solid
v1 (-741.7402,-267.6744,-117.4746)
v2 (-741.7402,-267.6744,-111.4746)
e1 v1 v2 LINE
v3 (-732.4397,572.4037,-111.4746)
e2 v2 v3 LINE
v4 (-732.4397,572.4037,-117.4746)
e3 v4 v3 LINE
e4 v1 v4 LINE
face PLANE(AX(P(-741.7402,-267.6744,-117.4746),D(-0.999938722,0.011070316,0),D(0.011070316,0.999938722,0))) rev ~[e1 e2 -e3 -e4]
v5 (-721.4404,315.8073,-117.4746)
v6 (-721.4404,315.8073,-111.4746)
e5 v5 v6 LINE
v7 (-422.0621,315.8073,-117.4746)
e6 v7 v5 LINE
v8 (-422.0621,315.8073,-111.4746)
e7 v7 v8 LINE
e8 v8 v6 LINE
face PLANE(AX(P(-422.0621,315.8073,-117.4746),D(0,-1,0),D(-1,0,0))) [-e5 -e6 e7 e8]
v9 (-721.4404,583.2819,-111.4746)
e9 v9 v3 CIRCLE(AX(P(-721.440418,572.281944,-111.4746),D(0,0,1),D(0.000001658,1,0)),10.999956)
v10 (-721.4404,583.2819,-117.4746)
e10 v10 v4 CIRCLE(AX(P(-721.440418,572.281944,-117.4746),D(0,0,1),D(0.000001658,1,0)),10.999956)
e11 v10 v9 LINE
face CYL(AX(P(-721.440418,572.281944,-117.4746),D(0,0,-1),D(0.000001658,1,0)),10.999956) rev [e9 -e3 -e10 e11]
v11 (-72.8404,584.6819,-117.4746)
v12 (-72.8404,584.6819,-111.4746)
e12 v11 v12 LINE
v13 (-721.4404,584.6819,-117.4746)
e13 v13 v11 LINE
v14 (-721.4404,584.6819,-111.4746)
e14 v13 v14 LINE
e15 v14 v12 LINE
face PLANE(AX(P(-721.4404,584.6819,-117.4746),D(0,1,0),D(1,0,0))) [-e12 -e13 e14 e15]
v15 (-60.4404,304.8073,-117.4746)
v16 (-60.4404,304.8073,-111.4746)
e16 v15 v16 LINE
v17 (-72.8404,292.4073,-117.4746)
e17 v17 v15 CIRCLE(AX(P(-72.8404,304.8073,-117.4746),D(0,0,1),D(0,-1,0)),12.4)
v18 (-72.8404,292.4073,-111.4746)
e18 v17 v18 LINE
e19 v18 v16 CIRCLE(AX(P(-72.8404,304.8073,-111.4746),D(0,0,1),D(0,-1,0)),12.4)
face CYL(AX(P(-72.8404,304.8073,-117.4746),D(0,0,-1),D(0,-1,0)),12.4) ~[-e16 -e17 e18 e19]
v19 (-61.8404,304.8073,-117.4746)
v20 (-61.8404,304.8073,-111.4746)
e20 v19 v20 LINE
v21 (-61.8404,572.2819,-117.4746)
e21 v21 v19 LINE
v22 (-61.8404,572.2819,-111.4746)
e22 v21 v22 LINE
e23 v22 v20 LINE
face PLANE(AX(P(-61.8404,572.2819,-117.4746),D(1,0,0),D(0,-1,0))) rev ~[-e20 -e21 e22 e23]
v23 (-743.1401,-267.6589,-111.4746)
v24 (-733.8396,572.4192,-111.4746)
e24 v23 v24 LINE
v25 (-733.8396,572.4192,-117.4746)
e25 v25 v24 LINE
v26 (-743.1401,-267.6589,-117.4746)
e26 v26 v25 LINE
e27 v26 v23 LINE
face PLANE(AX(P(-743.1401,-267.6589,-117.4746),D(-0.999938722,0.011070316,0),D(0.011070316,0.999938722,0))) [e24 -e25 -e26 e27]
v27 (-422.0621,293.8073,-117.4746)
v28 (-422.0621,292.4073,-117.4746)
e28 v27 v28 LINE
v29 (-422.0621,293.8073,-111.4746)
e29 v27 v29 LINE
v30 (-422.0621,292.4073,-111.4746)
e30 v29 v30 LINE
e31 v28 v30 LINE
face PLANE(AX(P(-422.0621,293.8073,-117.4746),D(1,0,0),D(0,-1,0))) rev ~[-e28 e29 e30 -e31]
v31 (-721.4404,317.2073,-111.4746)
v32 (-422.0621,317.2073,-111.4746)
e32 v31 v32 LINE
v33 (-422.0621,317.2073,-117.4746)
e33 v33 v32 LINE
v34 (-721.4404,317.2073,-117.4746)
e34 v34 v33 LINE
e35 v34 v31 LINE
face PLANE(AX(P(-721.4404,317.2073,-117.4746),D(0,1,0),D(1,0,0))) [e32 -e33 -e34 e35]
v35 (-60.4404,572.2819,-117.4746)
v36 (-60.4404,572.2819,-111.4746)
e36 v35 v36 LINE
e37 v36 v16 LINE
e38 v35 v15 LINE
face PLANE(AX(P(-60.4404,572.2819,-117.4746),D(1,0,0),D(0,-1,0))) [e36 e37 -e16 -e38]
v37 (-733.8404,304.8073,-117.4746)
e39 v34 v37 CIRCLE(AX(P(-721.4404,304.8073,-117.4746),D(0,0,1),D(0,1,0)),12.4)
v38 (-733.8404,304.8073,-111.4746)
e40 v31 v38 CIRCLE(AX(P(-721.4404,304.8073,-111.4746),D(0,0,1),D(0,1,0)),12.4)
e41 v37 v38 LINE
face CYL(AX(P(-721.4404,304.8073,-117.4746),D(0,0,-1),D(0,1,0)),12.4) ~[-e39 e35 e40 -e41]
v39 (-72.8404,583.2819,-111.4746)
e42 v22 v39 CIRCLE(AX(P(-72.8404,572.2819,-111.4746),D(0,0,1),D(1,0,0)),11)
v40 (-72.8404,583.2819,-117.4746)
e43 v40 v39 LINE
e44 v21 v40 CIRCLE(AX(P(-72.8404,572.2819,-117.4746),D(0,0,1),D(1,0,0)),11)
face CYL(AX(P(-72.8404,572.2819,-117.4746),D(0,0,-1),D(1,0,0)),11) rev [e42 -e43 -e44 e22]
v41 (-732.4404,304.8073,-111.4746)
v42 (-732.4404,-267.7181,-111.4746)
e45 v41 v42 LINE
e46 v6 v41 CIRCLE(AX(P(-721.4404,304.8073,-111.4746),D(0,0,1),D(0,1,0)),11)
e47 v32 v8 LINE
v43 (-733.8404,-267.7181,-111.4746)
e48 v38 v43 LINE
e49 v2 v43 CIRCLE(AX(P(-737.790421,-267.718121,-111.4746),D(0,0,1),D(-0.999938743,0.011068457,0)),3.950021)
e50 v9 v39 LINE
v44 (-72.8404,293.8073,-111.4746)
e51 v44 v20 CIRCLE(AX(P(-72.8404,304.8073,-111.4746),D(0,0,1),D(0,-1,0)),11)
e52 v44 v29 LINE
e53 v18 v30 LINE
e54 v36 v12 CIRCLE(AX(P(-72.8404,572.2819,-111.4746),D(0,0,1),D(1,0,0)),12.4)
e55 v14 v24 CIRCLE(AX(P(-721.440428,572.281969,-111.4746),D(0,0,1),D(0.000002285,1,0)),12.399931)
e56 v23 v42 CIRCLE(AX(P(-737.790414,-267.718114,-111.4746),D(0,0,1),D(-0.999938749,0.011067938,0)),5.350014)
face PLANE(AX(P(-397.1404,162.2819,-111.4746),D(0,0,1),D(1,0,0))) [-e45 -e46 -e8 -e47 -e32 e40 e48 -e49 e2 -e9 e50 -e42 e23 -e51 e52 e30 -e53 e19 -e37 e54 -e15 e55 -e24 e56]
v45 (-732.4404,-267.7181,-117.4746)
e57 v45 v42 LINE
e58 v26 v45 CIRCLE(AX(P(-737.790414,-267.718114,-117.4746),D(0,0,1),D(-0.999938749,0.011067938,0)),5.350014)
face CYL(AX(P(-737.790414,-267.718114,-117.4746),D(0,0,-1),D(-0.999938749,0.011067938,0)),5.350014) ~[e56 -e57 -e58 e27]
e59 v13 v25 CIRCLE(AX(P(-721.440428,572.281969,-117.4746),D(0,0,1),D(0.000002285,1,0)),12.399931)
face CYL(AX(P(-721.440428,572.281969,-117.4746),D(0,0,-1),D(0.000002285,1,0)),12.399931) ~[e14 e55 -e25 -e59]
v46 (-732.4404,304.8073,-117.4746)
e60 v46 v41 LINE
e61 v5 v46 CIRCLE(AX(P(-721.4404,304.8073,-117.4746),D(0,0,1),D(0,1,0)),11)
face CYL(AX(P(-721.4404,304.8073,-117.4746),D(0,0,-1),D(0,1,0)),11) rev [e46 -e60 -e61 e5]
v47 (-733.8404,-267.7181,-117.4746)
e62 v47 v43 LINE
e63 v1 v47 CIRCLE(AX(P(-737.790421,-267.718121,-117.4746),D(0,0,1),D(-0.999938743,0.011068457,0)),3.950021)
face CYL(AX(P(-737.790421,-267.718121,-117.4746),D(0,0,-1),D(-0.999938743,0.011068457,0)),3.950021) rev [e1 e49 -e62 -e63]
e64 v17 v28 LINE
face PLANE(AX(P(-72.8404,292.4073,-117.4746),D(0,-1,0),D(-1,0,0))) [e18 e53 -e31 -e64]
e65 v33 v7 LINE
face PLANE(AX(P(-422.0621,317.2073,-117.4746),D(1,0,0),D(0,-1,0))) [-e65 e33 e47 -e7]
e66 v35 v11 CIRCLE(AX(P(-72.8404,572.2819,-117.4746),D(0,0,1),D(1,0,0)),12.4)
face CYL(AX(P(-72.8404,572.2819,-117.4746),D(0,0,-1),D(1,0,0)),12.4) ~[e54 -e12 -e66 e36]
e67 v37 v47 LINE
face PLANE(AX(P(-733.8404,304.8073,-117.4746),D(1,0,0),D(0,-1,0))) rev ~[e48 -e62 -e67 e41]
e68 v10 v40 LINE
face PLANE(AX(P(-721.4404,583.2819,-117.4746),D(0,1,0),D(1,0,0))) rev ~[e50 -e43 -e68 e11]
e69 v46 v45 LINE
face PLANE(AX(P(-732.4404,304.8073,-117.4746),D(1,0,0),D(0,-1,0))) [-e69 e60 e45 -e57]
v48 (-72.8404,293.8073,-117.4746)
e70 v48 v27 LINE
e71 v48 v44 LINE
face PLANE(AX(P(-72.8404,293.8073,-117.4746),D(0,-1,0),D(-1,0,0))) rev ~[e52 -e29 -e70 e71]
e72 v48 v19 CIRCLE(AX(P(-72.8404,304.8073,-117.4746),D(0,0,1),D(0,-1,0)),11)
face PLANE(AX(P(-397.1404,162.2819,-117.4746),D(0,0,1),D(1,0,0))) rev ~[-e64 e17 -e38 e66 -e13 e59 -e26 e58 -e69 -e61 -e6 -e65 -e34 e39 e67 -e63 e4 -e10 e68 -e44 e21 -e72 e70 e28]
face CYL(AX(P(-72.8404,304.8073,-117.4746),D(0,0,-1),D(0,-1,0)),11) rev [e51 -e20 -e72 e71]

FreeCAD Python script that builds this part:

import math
import FreeCAD as App
import Part
import Sketcher
from FreeCAD import Vector

doc = App.newDocument("Part")
body = doc.addObject("PartDesign::Body", "Body")

# Sketch on XY plane
sketch1 = doc.addObject("Sketcher::SketchObject", "Sketch")
body.addObject(sketch1)
sketch1.AttachmentSupport = (doc.XY_Plane, [""])
sketch1.MapMode = "FlatFace"
sketch1.AttachmentOffset = App.Placement(Vector(0, 0, -117.4746), App.Rotation())
sketch1.addGeometry(Part.ArcOfCircle(Part.Circle(Vector(-737.8, -267.7, 0), Vector(0, 0, 1), 4), math.radians(179), math.radians(360)), False)
sketch1.addGeometry(Part.LineSegment(Vector(-741.7, -267.7, 0), Vector(-732.4, 572.4, 0)), False)
sketch1.addGeometry(Part.ArcOfCircle(Part.Circle(Vector(-721.4, 572.3, 0), Vector(0, 0, 1), 11), math.radians(90), math.radians(179)), False)
sketch1.addGeometry(Part.LineSegment(Vector(-721.4, 583.3, 0), Vector(-72.8, 583.3, 0)), False)
sketch1.addGeometry(Part.ArcOfCircle(Part.Circle(Vector(-72.8, 572.3, 0), Vector(0, 0, 1), 11), math.radians(0), math.radians(90)), False)
sketch1.addGeometry(Part.LineSegment(Vector(-61.8, 572.3, 0), Vector(-61.8, 304.8, 0)), False)
sketch1.addGeometry(Part.ArcOfCircle(Part.Circle(Vector(-72.8, 304.8, 0), Vector(0, 0, 1), 11), math.radians(-90), math.radians(0)), False)
sketch1.addGeometry(Part.LineSegment(Vector(-72.8, 293.8, 0), Vector(-422.1, 293.8, 0)), False)
sketch1.addGeometry(Part.LineSegment(Vector(-422.1, 293.8, 0), Vector(-422.1, 292.4, 0)), False)
sketch1.addGeometry(Part.LineSegment(Vector(-422.1, 292.4, 0), Vector(-72.8, 292.4, 0)), False)
sketch1.addGeometry(Part.ArcOfCircle(Part.Circle(Vector(-72.8, 304.8, 0), Vector(0, 0, 1), 12.4), math.radians(-90), math.radians(0)), False)
sketch1.addGeometry(Part.LineSegment(Vector(-60.4, 304.8, 0), Vector(-60.4, 572.3, 0)), False)
sketch1.addGeometry(Part.ArcOfCircle(Part.Circle(Vector(-72.8, 572.3, 0), Vector(0, 0, 1), 12.4), math.radians(0), math.radians(90)), False)
sketch1.addGeometry(Part.LineSegment(Vector(-72.8, 584.7, 0), Vector(-721.4, 584.7, 0)), False)
sketch1.addGeometry(Part.ArcOfCircle(Part.Circle(Vector(-721.4, 572.3, 0), Vector(0, 0, 1), 12.4), math.radians(90), math.radians(179)), False)
sketch1.addGeometry(Part.LineSegment(Vector(-733.8, 572.4, 0), Vector(-743.1, -267.7, 0)), False)
sketch1.addGeometry(Part.ArcOfCircle(Part.Circle(Vector(-737.8, -267.7, 0), Vector(0, 0, 1), 5.4), math.radians(179), math.radians(360)), False)
sketch1.addGeometry(Part.LineSegment(Vector(-732.4, -267.7, 0), Vector(-732.4, 304.8, 0)), False)
sketch1.addGeometry(Part.ArcOfCircle(Part.Circle(Vector(-721.4, 304.8, 0), Vector(0, 0, 1), 11), math.radians(90), math.radians(180)), False)
sketch1.addGeometry(Part.LineSegment(Vector(-721.4, 315.8, 0), Vector(-422.1, 315.8, 0)), False)
sketch1.addGeometry(Part.LineSegment(Vector(-422.1, 315.8, 0), Vector(-422.1, 317.2, 0)), False)
sketch1.addGeometry(Part.LineSegment(Vector(-422.1, 317.2, 0), Vector(-721.4, 317.2, 0)), False)
sketch1.addGeometry(Part.ArcOfCircle(Part.Circle(Vector(-721.4, 304.8, 0), Vector(0, 0, 1), 12.4), math.radians(90), math.radians(180)), False)
sketch1.addGeometry(Part.LineSegment(Vector(-733.8, 304.8, 0), Vector(-733.8, -267.7, 0)), False)
sketch1.addConstraint(Sketcher.Constraint("Tangent", 0, 1, 1, 1))
sketch1.addConstraint(Sketcher.Constraint("Tangent", 1, 2, 2, 2))
sketch1.addConstraint(Sketcher.Constraint("Tangent", 2, 1, 3, 1))
sketch1.addConstraint(Sketcher.Constraint("Tangent", 3, 2, 4, 2))
sketch1.addConstraint(Sketcher.Constraint("Tangent", 4, 1, 5, 1))
sketch1.addConstraint(Sketcher.Constraint("Tangent", 5, 2, 6, 2))
sketch1.addConstraint(Sketcher.Constraint("Tangent", 6, 1, 7, 1))
sketch1.addConstraint(Sketcher.Constraint("Coincident", 7, 2, 8, 1))
sketch1.addConstraint(Sketcher.Constraint("Coincident", 8, 2, 9, 1))
sketch1.addConstraint(Sketcher.Constraint("Tangent", 9, 2, 10, 1))
sketch1.addConstraint(Sketcher.Constraint("Tangent", 10, 2, 11, 1))
sketch1.addConstraint(Sketcher.Constraint("Tangent", 11, 2, 12, 1))
sketch1.addConstraint(Sketcher.Constraint("Tangent", 12, 2, 13, 1))
sketch1.addConstraint(Sketcher.Constraint("Tangent", 13, 2, 14, 1))
sketch1.addConstraint(Sketcher.Constraint("Tangent", 14, 2, 15, 1))
sketch1.addConstraint(Sketcher.Constraint("Tangent", 15, 2, 16, 1))
sketch1.addConstraint(Sketcher.Constraint("Tangent", 16, 2, 17, 1))
sketch1.addConstraint(Sketcher.Constraint("Tangent", 17, 2, 18, 2))
sketch1.addConstraint(Sketcher.Constraint("Tangent", 18, 1, 19, 1))
sketch1.addConstraint(Sketcher.Constraint("Coincident", 19, 2, 20, 1))
sketch1.addConstraint(Sketcher.Constraint("Coincident", 20, 2, 21, 1))
sketch1.addConstraint(Sketcher.Constraint("Tangent", 21, 2, 22, 1))
sketch1.addConstraint(Sketcher.Constraint("Tangent", 22, 2, 23, 1))
sketch1.addConstraint(Sketcher.Constraint("Tangent", 23, 2, 0, 2))
sketch1.addConstraint(Sketcher.Constraint("Horizontal", 3))
sketch1.addConstraint(Sketcher.Constraint("Vertical", 5))
sketch1.addConstraint(Sketcher.Constraint("Horizontal", 7))
sketch1.addConstraint(Sketcher.Constraint("Vertical", 8))
sketch1.addConstraint(Sketcher.Constraint("Horizontal", 9))
sketch1.addConstraint(Sketcher.Constraint("Vertical", 11))
sketch1.addConstraint(Sketcher.Constraint("Horizontal", 13))
sketch1.addConstraint(Sketcher.Constraint("Vertical", 17))
sketch1.addConstraint(Sketcher.Constraint("Horizontal", 19))
sketch1.addConstraint(Sketcher.Constraint("Vertical", 20))
sketch1.addConstraint(Sketcher.Constraint("Horizontal", 21))
sketch1.addConstraint(Sketcher.Constraint("Vertical", 23))
sketch1.addConstraint(Sketcher.Constraint("Coincident", 10, 3, 6, 3))
sketch1.addConstraint(Sketcher.Constraint("Coincident", 12, 3, 4, 3))
sketch1.addConstraint(Sketcher.Constraint("Coincident", 14, 3, 2, 3))
sketch1.addConstraint(Sketcher.Constraint("Coincident", 16, 3, 0, 3))
sketch1.addConstraint(Sketcher.Constraint("Coincident", 22, 3, 18, 3))
sketch1.addConstraint(Sketcher.Constraint("Equal", 2, 4))
sketch1.addConstraint(Sketcher.Constraint("Equal", 4, 6))
sketch1.addConstraint(Sketcher.Constraint("Equal", 6, 18))
sketch1.addConstraint(Sketcher.Constraint("Equal", 14, 22))
sketch1.addConstraint(Sketcher.Constraint("Horizontal", 10, 3, 18, 3))
sketch1.addConstraint(Sketcher.Constraint("Vertical", 14, 3, 18, 3))
sketch1.addConstraint(Sketcher.Constraint("Vertical", 8, 2, 19, 2))
sketch1.addConstraint(Sketcher.Constraint("DistanceY", 8, 2, 8, 1, 1.4))
sketch1.addConstraint(Sketcher.Constraint("Radius", 2, 11.0))
sketch1.addConstraint(Sketcher.Constraint("Radius", 0, 3.95))
sketch1.addConstraint(Sketcher.Constraint("DistanceX", 3, 1, 3, 2, 648.6))
sketch1.addConstraint(Sketcher.Constraint("DistanceY", 0, 3, 2, 3, 840.0))
sketch1.addConstraint(Sketcher.Constraint("DistanceX", 15, 2, -1, 1, 743.14))
sketch1.addConstraint(Sketcher.Constraint("DistanceX", 7, 2, 7, 1, 349.2217))
sketch1.addConstraint(Sketcher.Constraint("DistanceY", 5, 2, 5, 1, 267.4746))
sketch1.addConstraint(Sketcher.Constraint("DistanceY", 0, 3, -1, 1, 267.718))
pad1 = doc.addObject("PartDesign::Pad", "Pad")
body.addObject(pad1)
pad1.Profile = sketch1
pad1.Length = 6

doc.recompute()
